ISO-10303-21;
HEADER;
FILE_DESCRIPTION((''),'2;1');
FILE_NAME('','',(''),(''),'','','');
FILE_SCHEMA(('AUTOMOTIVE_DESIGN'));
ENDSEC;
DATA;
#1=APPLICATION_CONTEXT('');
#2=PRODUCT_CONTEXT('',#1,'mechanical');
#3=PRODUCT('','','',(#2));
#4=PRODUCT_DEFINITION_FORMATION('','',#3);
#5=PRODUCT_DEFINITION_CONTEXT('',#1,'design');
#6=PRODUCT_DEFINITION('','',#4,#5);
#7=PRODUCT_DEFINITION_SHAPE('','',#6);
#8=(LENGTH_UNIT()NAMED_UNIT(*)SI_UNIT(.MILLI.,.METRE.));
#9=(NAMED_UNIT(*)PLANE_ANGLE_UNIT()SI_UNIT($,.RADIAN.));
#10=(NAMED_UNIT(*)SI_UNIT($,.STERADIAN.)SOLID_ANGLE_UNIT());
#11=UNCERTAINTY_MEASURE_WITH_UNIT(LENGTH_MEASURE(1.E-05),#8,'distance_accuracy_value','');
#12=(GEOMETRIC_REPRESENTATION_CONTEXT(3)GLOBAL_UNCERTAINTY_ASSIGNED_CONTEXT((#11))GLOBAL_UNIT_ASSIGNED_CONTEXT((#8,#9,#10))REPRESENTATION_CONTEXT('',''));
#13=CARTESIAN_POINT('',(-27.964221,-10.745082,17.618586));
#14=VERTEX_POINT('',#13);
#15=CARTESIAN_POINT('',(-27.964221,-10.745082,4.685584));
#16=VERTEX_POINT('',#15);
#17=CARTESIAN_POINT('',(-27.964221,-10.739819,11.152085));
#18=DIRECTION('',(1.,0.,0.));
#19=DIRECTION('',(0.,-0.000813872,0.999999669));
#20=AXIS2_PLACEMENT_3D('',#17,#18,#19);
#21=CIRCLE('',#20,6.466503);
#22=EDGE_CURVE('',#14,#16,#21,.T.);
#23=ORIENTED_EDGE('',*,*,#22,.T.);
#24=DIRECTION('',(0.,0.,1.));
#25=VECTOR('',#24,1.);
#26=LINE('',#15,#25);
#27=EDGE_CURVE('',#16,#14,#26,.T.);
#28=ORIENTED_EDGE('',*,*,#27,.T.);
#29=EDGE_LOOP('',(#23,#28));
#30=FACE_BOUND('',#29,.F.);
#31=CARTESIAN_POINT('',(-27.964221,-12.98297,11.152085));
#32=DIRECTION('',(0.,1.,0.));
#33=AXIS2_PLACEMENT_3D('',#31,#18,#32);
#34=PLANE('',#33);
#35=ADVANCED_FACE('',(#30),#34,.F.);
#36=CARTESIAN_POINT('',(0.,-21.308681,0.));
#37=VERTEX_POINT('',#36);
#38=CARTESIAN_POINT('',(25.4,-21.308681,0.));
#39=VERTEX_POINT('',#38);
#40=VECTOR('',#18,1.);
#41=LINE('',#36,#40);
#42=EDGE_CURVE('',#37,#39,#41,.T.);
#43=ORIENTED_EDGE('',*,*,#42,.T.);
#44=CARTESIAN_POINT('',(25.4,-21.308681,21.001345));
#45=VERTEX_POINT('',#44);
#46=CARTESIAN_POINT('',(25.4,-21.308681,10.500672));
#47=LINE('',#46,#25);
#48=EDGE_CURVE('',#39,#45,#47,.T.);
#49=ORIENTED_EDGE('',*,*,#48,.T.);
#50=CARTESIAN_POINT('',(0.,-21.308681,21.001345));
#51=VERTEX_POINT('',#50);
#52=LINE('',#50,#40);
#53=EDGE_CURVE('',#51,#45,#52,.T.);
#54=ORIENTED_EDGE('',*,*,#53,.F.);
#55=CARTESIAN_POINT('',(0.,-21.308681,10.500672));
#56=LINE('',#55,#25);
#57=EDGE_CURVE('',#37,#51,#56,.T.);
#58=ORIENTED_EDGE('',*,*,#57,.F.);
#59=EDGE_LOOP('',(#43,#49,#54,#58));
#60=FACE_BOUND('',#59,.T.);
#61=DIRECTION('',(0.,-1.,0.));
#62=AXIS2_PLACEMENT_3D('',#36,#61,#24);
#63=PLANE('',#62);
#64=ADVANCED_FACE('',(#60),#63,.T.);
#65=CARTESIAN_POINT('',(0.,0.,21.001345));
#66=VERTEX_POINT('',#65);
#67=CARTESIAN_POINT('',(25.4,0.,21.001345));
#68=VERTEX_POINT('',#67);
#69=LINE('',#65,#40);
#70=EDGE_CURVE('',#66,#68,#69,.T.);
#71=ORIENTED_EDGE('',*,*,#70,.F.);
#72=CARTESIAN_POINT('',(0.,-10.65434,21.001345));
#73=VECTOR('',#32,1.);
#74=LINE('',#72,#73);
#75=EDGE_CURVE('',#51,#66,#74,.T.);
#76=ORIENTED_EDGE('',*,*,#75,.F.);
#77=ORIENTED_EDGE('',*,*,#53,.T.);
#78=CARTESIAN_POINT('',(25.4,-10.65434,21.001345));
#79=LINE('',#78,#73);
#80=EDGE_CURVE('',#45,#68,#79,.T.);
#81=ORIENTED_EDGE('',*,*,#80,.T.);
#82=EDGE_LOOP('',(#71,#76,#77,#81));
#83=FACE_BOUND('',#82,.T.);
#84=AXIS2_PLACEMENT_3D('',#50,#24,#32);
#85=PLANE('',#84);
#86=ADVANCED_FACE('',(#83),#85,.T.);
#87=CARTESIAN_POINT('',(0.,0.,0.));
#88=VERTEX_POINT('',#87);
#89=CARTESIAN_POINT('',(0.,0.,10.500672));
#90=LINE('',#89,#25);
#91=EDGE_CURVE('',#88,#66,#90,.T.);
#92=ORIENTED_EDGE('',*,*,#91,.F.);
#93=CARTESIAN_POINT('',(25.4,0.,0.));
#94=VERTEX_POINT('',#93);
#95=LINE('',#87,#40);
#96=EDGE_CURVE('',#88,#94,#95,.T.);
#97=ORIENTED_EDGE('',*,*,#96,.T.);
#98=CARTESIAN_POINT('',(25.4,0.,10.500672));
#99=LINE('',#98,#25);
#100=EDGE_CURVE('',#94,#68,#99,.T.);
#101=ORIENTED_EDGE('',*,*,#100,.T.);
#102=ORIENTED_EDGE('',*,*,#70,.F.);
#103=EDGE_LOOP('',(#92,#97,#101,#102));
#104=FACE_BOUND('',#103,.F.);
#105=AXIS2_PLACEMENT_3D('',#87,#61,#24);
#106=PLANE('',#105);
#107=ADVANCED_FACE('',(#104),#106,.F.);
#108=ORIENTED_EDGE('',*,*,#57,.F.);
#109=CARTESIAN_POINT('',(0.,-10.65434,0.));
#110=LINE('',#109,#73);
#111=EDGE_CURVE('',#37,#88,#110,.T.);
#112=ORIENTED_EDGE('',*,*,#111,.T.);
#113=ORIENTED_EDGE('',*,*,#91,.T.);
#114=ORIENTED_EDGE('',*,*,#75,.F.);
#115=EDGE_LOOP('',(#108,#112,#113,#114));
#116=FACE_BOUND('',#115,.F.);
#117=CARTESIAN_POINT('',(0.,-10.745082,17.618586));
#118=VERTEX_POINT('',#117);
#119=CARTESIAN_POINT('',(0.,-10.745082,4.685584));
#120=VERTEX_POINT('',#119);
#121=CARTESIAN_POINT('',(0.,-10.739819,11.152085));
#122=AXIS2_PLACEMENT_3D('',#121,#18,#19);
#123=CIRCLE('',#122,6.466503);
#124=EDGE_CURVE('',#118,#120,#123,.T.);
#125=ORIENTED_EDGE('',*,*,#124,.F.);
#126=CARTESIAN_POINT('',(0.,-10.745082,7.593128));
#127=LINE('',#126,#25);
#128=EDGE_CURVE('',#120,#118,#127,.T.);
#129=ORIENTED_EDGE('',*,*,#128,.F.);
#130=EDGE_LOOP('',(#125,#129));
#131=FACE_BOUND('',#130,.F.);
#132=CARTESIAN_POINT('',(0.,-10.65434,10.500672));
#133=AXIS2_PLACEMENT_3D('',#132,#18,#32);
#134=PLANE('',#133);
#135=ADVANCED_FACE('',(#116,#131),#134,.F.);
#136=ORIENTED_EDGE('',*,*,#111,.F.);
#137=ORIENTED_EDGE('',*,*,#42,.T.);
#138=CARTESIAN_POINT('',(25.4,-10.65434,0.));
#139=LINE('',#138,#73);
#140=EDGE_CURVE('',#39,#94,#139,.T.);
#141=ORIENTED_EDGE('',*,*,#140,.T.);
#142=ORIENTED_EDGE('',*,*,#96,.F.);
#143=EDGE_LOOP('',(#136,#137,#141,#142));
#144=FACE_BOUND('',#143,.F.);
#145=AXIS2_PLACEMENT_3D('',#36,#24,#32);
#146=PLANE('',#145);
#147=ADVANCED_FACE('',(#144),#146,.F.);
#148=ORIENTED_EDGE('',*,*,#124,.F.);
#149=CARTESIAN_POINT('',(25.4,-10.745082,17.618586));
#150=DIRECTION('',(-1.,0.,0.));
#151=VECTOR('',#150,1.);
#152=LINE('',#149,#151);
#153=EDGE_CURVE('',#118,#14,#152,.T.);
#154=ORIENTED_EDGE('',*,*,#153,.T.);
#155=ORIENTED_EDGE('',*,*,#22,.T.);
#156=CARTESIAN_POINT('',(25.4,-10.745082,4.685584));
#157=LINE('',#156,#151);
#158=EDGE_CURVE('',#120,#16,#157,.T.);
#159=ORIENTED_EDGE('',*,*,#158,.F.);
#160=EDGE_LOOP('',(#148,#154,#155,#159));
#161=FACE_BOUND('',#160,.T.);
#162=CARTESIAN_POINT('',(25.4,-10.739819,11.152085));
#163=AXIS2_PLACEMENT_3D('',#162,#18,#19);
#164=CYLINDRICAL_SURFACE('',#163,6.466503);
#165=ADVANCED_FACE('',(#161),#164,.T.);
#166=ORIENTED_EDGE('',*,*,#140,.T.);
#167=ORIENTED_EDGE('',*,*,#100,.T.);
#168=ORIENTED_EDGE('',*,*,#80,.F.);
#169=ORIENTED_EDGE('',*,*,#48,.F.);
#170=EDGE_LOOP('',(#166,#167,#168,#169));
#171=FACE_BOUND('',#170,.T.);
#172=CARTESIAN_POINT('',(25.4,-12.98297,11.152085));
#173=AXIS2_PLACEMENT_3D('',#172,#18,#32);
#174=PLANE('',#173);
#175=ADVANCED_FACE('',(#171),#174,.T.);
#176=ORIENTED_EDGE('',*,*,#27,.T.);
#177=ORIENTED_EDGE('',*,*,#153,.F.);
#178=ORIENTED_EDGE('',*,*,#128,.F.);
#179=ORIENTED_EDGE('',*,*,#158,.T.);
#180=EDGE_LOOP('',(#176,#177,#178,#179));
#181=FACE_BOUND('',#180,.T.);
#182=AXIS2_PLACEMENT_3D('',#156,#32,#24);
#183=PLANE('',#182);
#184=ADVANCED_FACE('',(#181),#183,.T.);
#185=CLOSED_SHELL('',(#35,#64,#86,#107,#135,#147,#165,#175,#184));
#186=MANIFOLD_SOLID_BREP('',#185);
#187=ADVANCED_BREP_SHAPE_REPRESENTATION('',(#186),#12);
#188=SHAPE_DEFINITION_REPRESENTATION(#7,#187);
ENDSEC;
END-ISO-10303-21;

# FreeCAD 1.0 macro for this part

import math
import FreeCAD as App
import Part
import Sketcher
from FreeCAD import Vector
Q = App.Units.Quantity


def add_polygon(sketch, points):
    """Adds a closed chain of lines whose ends are joined by coincident constraints."""
    first, n = sketch.GeometryCount, len(points)
    for a, b in zip(points, points[1:] + points[:1]):
        sketch.addGeometry(Part.LineSegment(App.Vector(*a, 0), App.Vector(*b, 0)), False)
    for i in range(n):
        sketch.addConstraint(Sketcher.Constraint("Coincident", first + i, 2, first + (i + 1) % n, 1))

doc = App.newDocument("Part")
body = doc.addObject("PartDesign::Body", "Body")

# Sketch on YZ plane
sketch1 = body.newObject("Sketcher::SketchObject", "Sketch")
sketch1.AttachmentSupport = (doc.getObject("YZ_Plane"), [""])
sketch1.MapMode = "FlatFace"
add_polygon(sketch1, [(-21, 21), (-21, 0), (0, 0), (0, 21)])  # lines 0-3
sketch1.addConstraint(Sketcher.Constraint("Vertical", 0))
sketch1.addConstraint(Sketcher.Constraint("Horizontal", 1))
sketch1.addConstraint(Sketcher.Constraint("Vertical", 2))
sketch1.addConstraint(Sketcher.Constraint("Horizontal", 3))
sketch1.addConstraint(Sketcher.Constraint("Coincident", 1, 2, -1, 1))
sketch1.addConstraint(Sketcher.Constraint("DistanceX", 1, 1, 1, 2, Q("21.308681 mm")))
sketch1.addConstraint(Sketcher.Constraint("DistanceY", 0, 2, 0, 1, Q("21.001345 mm")))
pad1 = body.newObject("PartDesign::Pad", "Pad")
pad1.Profile = sketch1
pad1.Length = Q("1 in")

# Sketch on YZ plane
sketch2 = body.newObject("Sketcher::SketchObject", "Sketch001")
sketch2.AttachmentSupport = (doc.getObject("YZ_Plane"), [""])
sketch2.MapMode = "FlatFace"
sketch2.AttachmentOffset = App.Placement(Vector(0, 0, 1 * 25.4), App.Rotation())
sketch2.addGeometry(Part.LineSegment(Vector(-11, 5, 0), Vector(-11, 18, 0)), False)
sketch2.addGeometry(Part.ArcOfCircle(Part.Circle(Vector(-11, 11, 0), Vector(0, 0, 1), 6), math.radians(90), math.radians(270)), False)
sketch2.addConstraint(Sketcher.Constraint("Coincident", 0, 1, 1, 2))
sketch2.addConstraint(Sketcher.Constraint("Coincident", 1, 1, 0, 2))
sketch2.addConstraint(Sketcher.Constraint("Vertical", 0))
sketch2.addConstraint(Sketcher.Constraint("Radius", 1, Q("6.466503 mm")))
sketch2.addConstraint(Sketcher.Constraint("DistanceX", 1, 3, -1, 1, Q("10.739819 mm")))
sketch2.addConstraint(Sketcher.Constraint("DistanceY", -1, 1, 1, 3, Q("11.152085 mm")))
sketch2.addConstraint(Sketcher.Constraint("DistanceX", 0, 1, -1, 1, Q("10.745082 mm")))
pad2 = body.newObject("PartDesign::Pad", "Pad001")
pad2.Profile = sketch2
pad2.Length = 53.364221
pad2.Reversed = True

doc.recompute()
